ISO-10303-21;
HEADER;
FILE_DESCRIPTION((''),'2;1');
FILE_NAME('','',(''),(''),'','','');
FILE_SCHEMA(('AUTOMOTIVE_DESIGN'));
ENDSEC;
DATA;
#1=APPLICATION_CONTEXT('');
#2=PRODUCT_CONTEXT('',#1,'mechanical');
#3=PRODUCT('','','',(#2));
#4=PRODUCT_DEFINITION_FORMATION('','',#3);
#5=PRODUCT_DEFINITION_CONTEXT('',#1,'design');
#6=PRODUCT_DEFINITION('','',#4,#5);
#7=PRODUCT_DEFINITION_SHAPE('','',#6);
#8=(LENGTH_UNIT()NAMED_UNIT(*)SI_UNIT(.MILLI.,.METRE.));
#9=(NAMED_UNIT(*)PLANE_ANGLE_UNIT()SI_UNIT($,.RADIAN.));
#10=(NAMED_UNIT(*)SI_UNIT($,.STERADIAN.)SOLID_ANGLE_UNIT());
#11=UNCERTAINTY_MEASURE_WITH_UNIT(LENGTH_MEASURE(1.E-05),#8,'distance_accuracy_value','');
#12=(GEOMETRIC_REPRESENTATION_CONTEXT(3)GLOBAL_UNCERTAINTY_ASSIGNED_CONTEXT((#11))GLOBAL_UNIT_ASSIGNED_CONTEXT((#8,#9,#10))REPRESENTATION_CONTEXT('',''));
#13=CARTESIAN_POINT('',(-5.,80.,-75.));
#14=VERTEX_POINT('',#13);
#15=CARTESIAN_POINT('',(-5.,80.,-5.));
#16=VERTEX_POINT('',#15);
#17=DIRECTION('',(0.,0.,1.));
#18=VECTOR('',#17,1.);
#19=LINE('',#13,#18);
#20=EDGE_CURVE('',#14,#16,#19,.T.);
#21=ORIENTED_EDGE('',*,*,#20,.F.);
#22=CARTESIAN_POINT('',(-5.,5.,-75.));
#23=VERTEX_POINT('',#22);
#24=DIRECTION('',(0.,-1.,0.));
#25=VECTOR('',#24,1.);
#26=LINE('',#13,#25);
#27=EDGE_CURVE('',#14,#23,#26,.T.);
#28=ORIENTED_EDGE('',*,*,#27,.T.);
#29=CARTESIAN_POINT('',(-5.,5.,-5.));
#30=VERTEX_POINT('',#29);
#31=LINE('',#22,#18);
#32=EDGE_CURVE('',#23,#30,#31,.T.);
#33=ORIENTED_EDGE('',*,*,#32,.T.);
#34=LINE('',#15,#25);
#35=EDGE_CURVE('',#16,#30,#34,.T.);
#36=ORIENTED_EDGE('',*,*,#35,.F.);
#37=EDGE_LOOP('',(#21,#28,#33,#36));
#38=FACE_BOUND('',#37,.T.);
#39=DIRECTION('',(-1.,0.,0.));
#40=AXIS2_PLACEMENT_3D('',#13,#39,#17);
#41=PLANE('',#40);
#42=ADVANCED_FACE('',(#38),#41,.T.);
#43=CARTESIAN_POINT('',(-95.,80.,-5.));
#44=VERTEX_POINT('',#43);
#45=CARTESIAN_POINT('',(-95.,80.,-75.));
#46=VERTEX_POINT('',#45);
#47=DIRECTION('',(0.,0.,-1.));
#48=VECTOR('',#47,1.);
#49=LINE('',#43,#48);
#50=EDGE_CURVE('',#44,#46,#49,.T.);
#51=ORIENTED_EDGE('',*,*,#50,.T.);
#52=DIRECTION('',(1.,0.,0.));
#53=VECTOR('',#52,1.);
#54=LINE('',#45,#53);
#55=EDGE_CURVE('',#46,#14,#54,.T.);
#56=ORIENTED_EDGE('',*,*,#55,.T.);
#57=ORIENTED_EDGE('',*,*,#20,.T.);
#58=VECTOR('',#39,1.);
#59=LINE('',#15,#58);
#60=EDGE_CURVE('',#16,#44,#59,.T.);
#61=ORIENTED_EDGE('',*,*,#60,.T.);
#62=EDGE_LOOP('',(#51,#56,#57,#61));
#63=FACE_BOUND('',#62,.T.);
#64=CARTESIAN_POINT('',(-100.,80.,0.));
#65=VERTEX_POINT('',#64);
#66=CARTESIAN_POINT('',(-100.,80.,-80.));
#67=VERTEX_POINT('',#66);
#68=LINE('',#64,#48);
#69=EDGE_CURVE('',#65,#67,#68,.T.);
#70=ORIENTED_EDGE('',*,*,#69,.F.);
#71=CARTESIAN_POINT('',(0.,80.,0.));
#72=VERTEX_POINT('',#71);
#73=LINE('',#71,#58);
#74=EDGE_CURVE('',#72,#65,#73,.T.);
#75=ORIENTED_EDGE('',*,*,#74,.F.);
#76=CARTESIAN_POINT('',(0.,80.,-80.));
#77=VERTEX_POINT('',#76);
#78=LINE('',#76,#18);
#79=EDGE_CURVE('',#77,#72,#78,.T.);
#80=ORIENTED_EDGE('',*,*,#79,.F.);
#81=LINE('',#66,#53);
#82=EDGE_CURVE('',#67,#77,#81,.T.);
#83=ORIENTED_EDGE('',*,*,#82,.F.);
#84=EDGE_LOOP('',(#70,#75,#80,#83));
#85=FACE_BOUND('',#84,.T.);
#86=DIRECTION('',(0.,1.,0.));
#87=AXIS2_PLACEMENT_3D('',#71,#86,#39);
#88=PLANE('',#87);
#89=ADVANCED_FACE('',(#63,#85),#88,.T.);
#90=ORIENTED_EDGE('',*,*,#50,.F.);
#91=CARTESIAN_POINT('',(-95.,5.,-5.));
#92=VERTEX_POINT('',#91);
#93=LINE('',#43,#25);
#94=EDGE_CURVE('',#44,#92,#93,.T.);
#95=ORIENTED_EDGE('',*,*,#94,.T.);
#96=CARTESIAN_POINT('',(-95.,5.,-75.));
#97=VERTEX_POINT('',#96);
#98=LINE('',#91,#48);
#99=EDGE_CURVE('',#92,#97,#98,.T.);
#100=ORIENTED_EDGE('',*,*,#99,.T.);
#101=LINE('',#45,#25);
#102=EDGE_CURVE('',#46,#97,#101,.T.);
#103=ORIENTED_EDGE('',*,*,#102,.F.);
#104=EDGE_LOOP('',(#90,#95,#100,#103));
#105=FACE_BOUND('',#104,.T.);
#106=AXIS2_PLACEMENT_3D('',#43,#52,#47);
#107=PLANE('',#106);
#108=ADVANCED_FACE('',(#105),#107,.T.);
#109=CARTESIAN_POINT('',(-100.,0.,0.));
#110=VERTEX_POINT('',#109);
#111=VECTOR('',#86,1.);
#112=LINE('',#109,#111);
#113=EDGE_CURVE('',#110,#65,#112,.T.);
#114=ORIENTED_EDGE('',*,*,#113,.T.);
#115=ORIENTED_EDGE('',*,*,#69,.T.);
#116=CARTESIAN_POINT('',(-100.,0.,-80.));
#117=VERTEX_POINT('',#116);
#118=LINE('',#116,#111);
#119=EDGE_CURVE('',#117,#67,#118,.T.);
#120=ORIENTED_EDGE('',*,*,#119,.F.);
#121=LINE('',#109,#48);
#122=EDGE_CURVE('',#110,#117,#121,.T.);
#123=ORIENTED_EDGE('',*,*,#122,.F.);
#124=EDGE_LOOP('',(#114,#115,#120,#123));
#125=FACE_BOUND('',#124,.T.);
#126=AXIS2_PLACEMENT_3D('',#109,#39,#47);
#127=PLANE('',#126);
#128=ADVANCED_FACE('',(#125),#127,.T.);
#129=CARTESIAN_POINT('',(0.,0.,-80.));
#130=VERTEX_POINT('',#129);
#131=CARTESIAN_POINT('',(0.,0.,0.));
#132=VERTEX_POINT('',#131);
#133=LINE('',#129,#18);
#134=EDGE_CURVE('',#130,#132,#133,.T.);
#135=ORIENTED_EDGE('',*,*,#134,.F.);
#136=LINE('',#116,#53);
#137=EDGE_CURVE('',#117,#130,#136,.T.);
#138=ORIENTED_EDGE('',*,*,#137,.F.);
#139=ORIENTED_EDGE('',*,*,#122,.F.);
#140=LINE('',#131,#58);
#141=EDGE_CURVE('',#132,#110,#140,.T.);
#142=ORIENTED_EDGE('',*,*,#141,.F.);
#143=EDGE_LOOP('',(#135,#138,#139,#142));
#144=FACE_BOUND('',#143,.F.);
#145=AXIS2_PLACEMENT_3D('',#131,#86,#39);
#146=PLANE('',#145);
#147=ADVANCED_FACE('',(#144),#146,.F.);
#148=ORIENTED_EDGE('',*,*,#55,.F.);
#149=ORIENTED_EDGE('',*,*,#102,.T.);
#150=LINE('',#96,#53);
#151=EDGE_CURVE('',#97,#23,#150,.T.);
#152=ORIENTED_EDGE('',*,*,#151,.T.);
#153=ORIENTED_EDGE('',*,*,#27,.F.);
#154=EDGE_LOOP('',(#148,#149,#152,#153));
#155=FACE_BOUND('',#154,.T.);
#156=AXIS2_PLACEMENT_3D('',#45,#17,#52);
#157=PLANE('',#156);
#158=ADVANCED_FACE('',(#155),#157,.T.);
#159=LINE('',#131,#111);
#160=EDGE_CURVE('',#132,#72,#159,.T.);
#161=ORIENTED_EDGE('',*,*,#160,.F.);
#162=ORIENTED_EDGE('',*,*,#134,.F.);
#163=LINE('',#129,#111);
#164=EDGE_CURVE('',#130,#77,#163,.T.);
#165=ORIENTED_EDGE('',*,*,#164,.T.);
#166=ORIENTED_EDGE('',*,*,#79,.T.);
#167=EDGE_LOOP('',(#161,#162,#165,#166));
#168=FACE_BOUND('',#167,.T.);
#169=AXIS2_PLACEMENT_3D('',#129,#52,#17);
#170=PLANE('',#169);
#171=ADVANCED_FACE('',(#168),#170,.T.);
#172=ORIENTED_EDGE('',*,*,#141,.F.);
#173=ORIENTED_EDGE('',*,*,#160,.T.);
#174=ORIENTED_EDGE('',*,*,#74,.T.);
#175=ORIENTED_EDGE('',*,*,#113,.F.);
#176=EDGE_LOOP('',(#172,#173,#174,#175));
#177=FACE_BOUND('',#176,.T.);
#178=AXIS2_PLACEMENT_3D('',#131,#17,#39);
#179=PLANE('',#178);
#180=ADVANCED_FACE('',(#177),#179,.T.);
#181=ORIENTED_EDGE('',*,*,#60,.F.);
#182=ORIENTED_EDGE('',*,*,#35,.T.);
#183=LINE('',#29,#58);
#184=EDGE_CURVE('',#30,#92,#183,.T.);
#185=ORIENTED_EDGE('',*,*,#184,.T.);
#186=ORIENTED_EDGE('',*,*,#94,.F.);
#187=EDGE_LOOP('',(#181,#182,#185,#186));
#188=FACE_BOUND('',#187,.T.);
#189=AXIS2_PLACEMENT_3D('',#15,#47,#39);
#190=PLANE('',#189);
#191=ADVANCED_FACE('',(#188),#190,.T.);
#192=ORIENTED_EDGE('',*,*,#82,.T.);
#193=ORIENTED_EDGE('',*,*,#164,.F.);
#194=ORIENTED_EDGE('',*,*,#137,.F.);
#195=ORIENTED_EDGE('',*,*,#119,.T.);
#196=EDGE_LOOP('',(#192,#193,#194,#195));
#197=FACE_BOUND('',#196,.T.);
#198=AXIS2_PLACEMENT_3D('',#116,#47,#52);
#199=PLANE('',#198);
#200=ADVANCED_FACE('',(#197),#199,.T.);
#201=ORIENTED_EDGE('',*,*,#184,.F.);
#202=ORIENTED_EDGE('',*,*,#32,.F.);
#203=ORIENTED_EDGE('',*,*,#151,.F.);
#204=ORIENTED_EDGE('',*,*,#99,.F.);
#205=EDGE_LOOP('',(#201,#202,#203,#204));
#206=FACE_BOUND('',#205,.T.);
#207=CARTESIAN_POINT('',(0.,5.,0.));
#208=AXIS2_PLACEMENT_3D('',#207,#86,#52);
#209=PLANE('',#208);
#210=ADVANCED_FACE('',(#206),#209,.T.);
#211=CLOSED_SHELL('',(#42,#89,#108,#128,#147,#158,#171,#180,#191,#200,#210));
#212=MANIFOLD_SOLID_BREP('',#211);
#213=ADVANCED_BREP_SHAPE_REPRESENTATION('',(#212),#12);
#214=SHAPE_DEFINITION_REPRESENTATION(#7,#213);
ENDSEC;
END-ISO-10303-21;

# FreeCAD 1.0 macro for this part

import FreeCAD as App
import Part
import Sketcher
from FreeCAD import Vector


def add_polygon(sketch, points):
    """Adds a closed chain of lines whose ends are joined by coincident constraints."""
    first, n = sketch.GeometryCount, len(points)
    for a, b in zip(points, points[1:] + points[:1]):
        sketch.addGeometry(Part.LineSegment(App.Vector(*a, 0), App.Vector(*b, 0)), False)
    for i in range(n):
        sketch.addConstraint(Sketcher.Constraint("Coincident", first + i, 2, first + (i + 1) % n, 1))

doc = App.newDocument("Part")
body = doc.addObject("PartDesign::Body", "Body")

# Sketch on XZ plane
sketch1 = body.newObject("Sketcher::SketchObject", "Sketch")
sketch1.AttachmentSupport = (doc.getObject("XZ_Plane"), [""])
sketch1.MapMode = "FlatFace"
add_polygon(sketch1, [(-100, 0), (0, 0), (0, -80), (-100, -80)])  # lines 0-3
sketch1.addConstraint([
    Sketcher.Constraint("Horizontal", 0),
    Sketcher.Constraint("Vertical", 1),
    Sketcher.Constraint("Horizontal", 2),
    Sketcher.Constraint("Vertical", 3),
    Sketcher.Constraint("Coincident", 0, 2, -1, 1),
    Sketcher.Constraint("DistanceX", 0, 1, 0, 2, 100.0),
    Sketcher.Constraint("DistanceY", 1, 2, 1, 1, 80.0),
])
pad1 = body.newObject("PartDesign::Pad", "Pad")
pad1.Profile = sketch1
pad1.Length = 80
pad1.Reversed = True

# Sketch on XZ plane
sketch2 = body.newObject("Sketcher::SketchObject", "Sketch001")
sketch2.AttachmentSupport = (doc.getObject("XZ_Plane"), [""])
sketch2.MapMode = "FlatFace"
sketch2.AttachmentOffset = App.Placement(Vector(0, 0, -80), App.Rotation())
add_polygon(sketch2, [(-95, -5), (-5, -5), (-5, -75), (-95, -75)])  # lines 0-3
sketch2.addConstraint([
    Sketcher.Constraint("Horizontal", 0),
    Sketcher.Constraint("Vertical", 1),
    Sketcher.Constraint("Horizontal", 2),
    Sketcher.Constraint("Vertical", 3),
    Sketcher.Constraint("DistanceX", 0, 2, -1, 1, 5.0),
    Sketcher.Constraint("DistanceY", 0, 2, -1, 1, 5.0),
    Sketcher.Constraint("DistanceX", 0, 1, 0, 2, 90.0),
    Sketcher.Constraint("DistanceY", 1, 2, 1, 1, 70.0),
])
pocket1 = body.newObject("PartDesign::Pocket", "Pocket")
pocket1.Profile = sketch2
pocket1.Length = 75
pocket1.Reversed = True

doc.recompute()
